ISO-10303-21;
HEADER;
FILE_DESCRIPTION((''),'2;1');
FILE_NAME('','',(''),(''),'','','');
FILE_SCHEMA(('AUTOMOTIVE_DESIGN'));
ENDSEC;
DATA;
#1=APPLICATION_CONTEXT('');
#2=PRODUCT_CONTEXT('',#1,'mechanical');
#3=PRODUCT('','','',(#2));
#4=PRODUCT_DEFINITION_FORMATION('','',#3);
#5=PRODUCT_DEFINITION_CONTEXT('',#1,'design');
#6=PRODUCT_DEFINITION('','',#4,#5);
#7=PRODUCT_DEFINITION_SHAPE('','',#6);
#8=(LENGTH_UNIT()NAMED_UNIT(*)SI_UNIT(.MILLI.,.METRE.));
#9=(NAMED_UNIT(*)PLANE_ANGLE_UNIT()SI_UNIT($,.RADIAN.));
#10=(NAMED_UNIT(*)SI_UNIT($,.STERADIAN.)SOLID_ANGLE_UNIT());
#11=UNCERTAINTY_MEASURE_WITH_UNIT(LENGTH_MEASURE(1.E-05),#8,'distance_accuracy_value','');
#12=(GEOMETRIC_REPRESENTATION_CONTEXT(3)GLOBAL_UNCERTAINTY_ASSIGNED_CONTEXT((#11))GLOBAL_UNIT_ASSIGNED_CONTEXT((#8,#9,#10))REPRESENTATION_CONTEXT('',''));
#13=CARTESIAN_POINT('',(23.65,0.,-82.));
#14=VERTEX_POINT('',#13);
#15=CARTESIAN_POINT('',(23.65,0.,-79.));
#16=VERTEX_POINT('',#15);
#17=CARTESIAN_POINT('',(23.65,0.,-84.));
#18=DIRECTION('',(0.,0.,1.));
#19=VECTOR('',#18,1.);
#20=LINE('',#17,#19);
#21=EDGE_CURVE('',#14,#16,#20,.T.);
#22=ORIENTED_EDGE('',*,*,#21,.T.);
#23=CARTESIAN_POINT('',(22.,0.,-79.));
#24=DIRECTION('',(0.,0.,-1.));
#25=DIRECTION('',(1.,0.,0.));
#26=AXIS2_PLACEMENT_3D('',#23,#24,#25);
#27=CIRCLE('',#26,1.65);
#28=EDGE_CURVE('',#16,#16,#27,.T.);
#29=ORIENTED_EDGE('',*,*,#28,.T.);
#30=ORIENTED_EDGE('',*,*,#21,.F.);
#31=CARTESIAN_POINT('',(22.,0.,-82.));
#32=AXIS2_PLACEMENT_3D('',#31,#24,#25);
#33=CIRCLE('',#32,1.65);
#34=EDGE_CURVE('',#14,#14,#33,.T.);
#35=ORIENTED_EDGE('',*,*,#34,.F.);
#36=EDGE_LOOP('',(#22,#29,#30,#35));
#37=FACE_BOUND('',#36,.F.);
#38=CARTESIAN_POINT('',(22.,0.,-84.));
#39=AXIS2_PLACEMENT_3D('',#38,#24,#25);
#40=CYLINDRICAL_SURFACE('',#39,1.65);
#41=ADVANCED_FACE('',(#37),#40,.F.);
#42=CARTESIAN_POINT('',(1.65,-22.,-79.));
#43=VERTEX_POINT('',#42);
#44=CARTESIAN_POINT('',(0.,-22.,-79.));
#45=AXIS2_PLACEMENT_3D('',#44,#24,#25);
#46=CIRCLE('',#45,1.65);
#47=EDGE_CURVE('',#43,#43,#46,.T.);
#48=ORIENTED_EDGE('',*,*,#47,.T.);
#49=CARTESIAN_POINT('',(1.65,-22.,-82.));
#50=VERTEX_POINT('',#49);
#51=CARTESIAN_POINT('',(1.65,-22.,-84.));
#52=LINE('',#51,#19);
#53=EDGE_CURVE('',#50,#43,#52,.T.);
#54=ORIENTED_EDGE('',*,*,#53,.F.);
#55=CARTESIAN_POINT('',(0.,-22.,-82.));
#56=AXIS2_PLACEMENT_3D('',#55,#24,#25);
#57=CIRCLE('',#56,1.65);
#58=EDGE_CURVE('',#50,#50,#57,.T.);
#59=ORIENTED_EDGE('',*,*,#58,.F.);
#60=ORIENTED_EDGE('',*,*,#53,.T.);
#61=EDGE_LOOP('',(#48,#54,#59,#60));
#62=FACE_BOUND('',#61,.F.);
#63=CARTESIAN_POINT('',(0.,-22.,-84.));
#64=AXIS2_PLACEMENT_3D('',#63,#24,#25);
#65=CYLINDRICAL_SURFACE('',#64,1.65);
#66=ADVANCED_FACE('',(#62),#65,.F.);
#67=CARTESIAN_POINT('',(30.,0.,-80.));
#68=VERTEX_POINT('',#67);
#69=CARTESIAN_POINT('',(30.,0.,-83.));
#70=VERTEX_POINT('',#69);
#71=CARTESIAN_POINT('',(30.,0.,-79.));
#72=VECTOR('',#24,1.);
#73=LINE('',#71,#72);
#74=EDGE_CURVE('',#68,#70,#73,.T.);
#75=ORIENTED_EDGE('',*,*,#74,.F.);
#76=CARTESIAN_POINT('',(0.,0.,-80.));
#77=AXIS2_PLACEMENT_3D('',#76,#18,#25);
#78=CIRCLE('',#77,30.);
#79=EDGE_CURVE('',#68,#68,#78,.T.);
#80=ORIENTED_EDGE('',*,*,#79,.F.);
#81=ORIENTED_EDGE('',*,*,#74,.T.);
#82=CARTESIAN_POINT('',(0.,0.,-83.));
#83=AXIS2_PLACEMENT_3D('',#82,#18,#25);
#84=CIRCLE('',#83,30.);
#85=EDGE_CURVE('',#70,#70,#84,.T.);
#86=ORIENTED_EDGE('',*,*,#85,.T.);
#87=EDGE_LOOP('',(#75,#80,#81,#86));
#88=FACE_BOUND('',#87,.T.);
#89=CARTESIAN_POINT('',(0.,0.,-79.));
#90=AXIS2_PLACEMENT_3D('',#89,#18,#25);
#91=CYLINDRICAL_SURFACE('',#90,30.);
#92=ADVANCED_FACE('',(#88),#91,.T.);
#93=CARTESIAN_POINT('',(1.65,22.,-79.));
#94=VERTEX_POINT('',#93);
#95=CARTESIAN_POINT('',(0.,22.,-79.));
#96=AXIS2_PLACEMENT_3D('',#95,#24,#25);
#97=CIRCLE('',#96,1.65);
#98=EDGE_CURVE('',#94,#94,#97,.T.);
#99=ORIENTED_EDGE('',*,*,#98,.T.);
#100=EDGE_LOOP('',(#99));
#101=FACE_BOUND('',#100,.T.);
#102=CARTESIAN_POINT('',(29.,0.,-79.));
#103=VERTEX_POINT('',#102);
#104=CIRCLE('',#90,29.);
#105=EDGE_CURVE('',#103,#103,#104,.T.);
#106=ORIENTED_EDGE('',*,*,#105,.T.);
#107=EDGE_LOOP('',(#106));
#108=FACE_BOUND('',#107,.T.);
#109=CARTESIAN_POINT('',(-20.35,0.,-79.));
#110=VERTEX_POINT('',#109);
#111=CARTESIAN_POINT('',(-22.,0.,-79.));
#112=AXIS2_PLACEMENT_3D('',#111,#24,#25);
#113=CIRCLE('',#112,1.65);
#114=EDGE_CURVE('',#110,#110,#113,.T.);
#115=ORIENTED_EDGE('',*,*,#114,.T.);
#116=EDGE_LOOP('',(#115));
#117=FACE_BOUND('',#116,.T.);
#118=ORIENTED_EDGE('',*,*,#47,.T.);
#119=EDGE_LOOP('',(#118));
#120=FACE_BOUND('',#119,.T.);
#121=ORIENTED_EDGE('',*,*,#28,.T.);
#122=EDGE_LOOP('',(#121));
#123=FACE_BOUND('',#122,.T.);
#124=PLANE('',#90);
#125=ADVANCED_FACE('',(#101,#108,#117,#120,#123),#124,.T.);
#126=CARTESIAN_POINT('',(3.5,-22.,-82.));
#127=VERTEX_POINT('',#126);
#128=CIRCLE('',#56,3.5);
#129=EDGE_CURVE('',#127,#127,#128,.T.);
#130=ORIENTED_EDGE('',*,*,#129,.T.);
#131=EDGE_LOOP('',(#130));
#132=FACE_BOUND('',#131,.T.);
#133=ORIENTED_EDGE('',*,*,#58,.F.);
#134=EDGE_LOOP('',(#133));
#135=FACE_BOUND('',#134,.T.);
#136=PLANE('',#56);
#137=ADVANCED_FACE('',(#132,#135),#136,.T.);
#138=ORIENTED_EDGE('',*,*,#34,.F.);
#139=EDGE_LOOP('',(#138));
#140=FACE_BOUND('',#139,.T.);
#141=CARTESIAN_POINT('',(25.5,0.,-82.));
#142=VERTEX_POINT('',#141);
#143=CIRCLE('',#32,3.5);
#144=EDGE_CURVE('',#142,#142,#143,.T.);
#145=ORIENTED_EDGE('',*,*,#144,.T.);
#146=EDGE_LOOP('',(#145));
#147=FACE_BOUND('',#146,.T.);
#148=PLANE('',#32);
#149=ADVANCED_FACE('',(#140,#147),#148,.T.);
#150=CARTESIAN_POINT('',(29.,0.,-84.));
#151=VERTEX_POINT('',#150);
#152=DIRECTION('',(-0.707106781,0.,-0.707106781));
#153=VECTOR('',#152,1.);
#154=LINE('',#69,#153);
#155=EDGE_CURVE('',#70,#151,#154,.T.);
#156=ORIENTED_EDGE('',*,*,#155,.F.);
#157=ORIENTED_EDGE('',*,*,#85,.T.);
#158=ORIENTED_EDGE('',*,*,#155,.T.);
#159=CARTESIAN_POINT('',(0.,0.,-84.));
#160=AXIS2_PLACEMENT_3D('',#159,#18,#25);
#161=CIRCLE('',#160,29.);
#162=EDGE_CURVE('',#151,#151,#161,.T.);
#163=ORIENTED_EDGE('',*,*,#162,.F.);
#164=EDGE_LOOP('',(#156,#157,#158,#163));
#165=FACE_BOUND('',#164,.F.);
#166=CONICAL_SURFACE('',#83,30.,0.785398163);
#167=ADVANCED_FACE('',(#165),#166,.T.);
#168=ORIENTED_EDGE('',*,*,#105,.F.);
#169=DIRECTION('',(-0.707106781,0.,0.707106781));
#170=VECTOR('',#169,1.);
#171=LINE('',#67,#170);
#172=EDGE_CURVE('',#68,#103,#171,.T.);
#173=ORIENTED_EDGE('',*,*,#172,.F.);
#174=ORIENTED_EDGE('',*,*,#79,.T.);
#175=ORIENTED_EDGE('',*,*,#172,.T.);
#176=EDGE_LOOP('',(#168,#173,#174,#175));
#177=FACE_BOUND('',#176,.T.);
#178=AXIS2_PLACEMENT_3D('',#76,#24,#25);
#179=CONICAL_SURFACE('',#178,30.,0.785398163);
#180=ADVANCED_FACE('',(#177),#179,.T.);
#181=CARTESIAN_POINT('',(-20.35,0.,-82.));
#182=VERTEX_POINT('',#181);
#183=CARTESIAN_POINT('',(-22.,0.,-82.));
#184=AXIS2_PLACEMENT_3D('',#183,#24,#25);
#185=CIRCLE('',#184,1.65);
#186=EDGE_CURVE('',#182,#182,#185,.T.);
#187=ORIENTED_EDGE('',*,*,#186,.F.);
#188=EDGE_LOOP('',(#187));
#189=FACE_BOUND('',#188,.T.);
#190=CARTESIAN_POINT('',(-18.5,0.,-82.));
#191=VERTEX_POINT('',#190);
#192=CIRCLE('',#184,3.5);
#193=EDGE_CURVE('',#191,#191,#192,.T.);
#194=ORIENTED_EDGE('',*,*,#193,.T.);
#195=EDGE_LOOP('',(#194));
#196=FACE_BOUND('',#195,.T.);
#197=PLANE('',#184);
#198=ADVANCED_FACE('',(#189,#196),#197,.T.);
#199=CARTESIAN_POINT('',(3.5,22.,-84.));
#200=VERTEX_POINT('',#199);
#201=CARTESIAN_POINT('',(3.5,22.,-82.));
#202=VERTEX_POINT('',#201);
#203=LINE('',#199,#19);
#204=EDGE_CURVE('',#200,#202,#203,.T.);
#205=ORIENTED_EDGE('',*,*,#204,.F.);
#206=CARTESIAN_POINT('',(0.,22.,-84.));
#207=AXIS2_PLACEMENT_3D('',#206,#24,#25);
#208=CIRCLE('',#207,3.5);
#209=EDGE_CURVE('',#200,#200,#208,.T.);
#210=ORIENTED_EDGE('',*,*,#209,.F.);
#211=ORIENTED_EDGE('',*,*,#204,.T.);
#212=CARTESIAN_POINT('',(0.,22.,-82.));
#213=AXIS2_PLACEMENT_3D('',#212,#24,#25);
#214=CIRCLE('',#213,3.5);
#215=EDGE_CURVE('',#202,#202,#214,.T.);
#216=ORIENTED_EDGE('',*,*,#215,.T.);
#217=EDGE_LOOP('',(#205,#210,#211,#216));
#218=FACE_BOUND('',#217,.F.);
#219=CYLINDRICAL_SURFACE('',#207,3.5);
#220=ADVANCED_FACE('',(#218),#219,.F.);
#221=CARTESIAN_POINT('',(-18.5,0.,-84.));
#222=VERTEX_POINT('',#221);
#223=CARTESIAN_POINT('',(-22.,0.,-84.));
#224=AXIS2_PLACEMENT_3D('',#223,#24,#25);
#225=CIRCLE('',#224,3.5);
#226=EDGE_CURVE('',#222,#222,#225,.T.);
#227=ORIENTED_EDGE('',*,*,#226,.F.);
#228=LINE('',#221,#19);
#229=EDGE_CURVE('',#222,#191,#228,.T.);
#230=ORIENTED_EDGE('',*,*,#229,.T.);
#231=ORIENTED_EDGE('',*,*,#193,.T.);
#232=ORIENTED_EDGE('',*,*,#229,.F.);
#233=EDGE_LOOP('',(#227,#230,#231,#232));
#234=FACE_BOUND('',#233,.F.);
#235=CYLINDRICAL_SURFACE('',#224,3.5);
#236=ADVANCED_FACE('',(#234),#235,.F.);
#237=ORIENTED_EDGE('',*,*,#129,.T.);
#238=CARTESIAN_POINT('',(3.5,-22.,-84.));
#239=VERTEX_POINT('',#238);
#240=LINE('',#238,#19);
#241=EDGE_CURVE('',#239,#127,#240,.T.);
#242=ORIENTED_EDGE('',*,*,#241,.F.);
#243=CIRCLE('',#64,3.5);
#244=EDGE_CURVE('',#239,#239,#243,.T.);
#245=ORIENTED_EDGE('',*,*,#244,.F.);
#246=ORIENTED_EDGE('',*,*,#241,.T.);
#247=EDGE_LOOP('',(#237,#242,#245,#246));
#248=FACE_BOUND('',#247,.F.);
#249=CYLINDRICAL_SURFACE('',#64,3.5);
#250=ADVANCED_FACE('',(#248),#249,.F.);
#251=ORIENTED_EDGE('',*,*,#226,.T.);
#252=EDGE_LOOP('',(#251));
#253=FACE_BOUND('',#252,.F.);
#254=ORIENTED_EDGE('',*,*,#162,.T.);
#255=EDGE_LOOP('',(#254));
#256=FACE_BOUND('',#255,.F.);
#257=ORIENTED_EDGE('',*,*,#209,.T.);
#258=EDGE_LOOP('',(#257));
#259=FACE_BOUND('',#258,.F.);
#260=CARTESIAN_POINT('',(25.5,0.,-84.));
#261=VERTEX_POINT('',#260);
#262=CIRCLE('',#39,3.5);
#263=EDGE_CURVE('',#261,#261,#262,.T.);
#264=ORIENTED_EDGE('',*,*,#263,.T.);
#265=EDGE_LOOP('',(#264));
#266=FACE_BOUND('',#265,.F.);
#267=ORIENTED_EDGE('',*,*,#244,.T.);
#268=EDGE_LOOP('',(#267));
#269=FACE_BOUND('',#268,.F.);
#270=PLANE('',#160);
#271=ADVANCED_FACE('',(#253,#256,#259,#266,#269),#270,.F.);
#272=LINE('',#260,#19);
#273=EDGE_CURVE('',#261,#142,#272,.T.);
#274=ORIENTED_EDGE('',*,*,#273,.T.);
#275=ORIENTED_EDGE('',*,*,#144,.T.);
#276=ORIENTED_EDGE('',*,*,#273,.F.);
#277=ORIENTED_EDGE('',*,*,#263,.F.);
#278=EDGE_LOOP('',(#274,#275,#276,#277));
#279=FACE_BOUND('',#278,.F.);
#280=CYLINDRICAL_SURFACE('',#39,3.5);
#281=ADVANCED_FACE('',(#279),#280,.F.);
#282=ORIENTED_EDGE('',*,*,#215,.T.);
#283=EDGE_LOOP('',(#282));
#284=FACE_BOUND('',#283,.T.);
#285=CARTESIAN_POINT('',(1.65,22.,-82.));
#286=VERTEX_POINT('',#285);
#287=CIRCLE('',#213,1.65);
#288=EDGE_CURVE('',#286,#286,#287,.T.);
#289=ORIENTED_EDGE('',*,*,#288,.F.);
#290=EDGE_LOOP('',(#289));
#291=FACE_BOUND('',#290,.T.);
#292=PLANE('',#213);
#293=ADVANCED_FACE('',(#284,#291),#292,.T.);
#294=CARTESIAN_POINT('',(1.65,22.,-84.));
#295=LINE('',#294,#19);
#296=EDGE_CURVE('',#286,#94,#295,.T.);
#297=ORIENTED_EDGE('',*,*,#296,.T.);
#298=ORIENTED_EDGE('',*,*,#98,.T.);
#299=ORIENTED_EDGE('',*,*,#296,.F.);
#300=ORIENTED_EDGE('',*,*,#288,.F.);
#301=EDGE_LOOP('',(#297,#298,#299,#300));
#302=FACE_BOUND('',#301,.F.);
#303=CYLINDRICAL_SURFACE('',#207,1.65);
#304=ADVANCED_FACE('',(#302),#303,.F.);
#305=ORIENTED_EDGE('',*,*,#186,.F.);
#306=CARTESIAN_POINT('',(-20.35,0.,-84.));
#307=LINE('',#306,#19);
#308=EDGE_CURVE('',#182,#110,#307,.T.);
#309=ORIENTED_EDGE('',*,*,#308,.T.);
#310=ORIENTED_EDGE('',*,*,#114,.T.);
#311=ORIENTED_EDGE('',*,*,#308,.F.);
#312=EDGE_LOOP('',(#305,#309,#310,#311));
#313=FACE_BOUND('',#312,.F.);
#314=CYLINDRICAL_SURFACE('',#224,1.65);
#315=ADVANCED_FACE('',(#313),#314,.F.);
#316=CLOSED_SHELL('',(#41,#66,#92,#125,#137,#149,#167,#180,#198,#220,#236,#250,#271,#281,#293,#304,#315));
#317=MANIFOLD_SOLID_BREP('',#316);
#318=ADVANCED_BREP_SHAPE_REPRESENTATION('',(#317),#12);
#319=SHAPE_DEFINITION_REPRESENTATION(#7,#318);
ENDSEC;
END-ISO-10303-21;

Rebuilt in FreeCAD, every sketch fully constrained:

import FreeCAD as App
import Part
import Sketcher

V = App.Vector
Q = App.Units.Quantity


def edges_at(feature, points):
    """Names of the edges that pass closest to the given points."""
    edges = feature.Shape.Edges
    near = lambda p: min(range(len(edges)), key=lambda i: edges[i].distToShape(Part.Vertex(*p))[0])
    return sorted({f"Edge{near(p) + 1}" for p in points})

doc = App.newDocument("Part")
body = doc.addObject("PartDesign::Body", "Body")

# Sketch on XY plane
sketch1 = doc.addObject("Sketcher::SketchObject", "Sketch")
body.addObject(sketch1)
sketch1.AttachmentSupport = (doc.XY_Plane, [""])
sketch1.MapMode = "FlatFace"
sketch1.addGeometry(Part.Circle(V(0, 0, 0), V(0, 0, 1), 30), False)
sketch1.addConstraint([
    Sketcher.Constraint("Coincident", 0, 3, -1, 1),
    Sketcher.Constraint("Diameter", 0, Q("60 mm")),
])
pad1 = doc.addObject("PartDesign::Pad", "Pad")
body.addObject(pad1)
pad1.Profile = sketch1
pad1.Length = 5
pad1.Reversed = True

# Sketch on XY plane
sketch2 = doc.addObject("Sketcher::SketchObject", "Sketch001")
body.addObject(sketch2)
sketch2.AttachmentSupport = (doc.XY_Plane, [""])
sketch2.MapMode = "FlatFace"
sketch2.AttachmentOffset = App.Placement(V(0, 0, -5), App.Rotation())
sketch2.addGeometry([
    Part.Circle(V(0, -22, 0), V(0, 0, 1), 1.6),
    Part.Circle(V(-22, 0, 0), V(0, 0, 1), 1.6),
    Part.Circle(V(22, 0, 0), V(0, 0, 1), 1.6),
    Part.Circle(V(0, 22, 0), V(0, 0, 1), 1.6),
], False)
sketch2.addConstraint([
    Sketcher.Constraint("Equal", 0, 1),
    Sketcher.Constraint("Equal", 1, 2),
    Sketcher.Constraint("Equal", 2, 3),
    Sketcher.Constraint("Symmetric", 1, 3, 2, 3, -1, 1),
    Sketcher.Constraint("Symmetric", 0, 3, 3, 3, -1, 1),
    Sketcher.Constraint("PointOnObject", 0, 3, -2),
    Sketcher.Constraint("PointOnObject", 1, 3, -1),
    Sketcher.Constraint("Diameter", 0, Q("3.3 mm")),
    Sketcher.Constraint("DistanceY", 0, 3, -1, 1, Q("22 mm")),
    Sketcher.Constraint("DistanceX", 1, 3, -1, 1, Q("22 mm")),
])
pocket1 = doc.addObject("PartDesign::Pocket", "Pocket")
body.addObject(pocket1)
pocket1.Profile = sketch2
pocket1.Length = 6
pocket1.Reversed = True

# Sketch on XY plane
sketch3 = doc.addObject("Sketcher::SketchObject", "Sketch002")
body.addObject(sketch3)
sketch3.AttachmentSupport = (doc.XY_Plane, [""])
sketch3.MapMode = "FlatFace"
sketch3.AttachmentOffset = App.Placement(V(0, 0, -5), App.Rotation())
sketch3.addGeometry([
    Part.Circle(V(0, -22, 0), V(0, 0, 1), 3.5),
    Part.Circle(V(-22, 0, 0), V(0, 0, 1), 3.5),
    Part.Circle(V(22, 0, 0), V(0, 0, 1), 3.5),
    Part.Circle(V(0, 22, 0), V(0, 0, 1), 3.5),
], False)
sketch3.addConstraint([
    Sketcher.Constraint("Equal", 0, 1),
    Sketcher.Constraint("Equal", 1, 2),
    Sketcher.Constraint("Equal", 2, 3),
    Sketcher.Constraint("Symmetric", 1, 3, 2, 3, -1, 1),
    Sketcher.Constraint("Symmetric", 0, 3, 3, 3, -1, 1),
    Sketcher.Constraint("PointOnObject", 0, 3, -2),
    Sketcher.Constraint("PointOnObject", 1, 3, -1),
    Sketcher.Constraint("Diameter", 0, Q("7 mm")),
    Sketcher.Constraint("DistanceY", 0, 3, -1, 1, Q("22 mm")),
    Sketcher.Constraint("DistanceX", 1, 3, -1, 1, Q("22 mm")),
])
pocket2 = doc.addObject("PartDesign::Pocket", "Pocket001")
body.addObject(pocket2)
pocket2.Profile = sketch3
pocket2.Length = 2
pocket2.Reversed = True
doc.recompute()

chamfer = doc.addObject("PartDesign::Chamfer", "Chamfer")
body.addObject(chamfer)
chamfer.Base = (pocket2, edges_at(pocket2, [(-30, 0, -5), (-30, 0, 0)]))
chamfer.Size = 1
body2 = doc.addObject("PartDesign::Body", "Body001")
doc.recompute()

body.Placement = App.Placement(V(0, 0, -79), App.Rotation(V(0, 0, 1), 0))
boolean = doc.addObject("PartDesign::Boolean", "Boolean")
body2.addObject(boolean)
boolean.Type = "Fuse"
boolean.addObjects([body])

doc.recompute()
